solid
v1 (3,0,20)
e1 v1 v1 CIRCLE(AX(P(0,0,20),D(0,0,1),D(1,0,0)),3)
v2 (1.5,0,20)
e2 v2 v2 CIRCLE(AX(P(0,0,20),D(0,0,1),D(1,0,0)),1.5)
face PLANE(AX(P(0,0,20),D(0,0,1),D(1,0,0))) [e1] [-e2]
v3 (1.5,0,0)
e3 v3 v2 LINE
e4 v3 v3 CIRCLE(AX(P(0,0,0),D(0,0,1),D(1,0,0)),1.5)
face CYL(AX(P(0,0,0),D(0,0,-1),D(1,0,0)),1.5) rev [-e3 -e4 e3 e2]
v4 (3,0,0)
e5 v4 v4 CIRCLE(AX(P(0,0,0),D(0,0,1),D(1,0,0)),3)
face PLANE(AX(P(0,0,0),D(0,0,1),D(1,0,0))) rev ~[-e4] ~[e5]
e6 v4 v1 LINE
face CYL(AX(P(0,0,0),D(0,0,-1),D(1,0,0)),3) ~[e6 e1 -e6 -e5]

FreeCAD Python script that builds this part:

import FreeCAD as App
import Part
import Sketcher
from FreeCAD import Vector
Q = App.Units.Quantity

doc = App.newDocument("Part")
params = doc.addObject("Spreadsheet::Sheet", "Params")
for row, (alias, value) in enumerate([
    ("sketch1_diameter", "6 mm"),
    ("sketch1_diameter2", "3 mm"),
    ("pad1_length", "20 mm"),
], start=1):
    params.set(f"A{row}", alias)
    params.set(f"B{row}", "=" + value)
    params.setAlias(f"B{row}", alias)

body = doc.addObject("PartDesign::Body", "Body")

sketch1 = doc.addObject("Sketcher::SketchObject", "Sketch")
body.addObject(sketch1)
sketch1.AttachmentSupport = (doc.XY_Plane, [""])
sketch1.MapMode = "FlatFace"
sketch1.addGeometry(Part.Circle(Vector(0, 0, 0), Vector(0, 0, 1), 3), False)
sketch1.addGeometry(Part.Circle(Vector(0, 0, 0), Vector(0, 0, 1), 1.5), False)
sketch1.addConstraint(Sketcher.Constraint("Coincident", 0, 3, -1, 1))
sketch1.addConstraint(Sketcher.Constraint("Coincident", 1, 3, -1, 1))
sketch1.addConstraint(Sketcher.Constraint("Diameter", 0, Q("6 mm")))
sketch1.addConstraint(Sketcher.Constraint("Diameter", 1, Q("3 mm")))
sketch1.setExpression("Constraints[2]", "Params.sketch1_diameter")
sketch1.setExpression("Constraints[3]", "Params.sketch1_diameter2")
pad1 = doc.addObject("PartDesign::Pad", "Pad")
body.addObject(pad1)
pad1.Profile = sketch1
pad1.setExpression("Length", "Params.pad1_length")

doc.recompute()
